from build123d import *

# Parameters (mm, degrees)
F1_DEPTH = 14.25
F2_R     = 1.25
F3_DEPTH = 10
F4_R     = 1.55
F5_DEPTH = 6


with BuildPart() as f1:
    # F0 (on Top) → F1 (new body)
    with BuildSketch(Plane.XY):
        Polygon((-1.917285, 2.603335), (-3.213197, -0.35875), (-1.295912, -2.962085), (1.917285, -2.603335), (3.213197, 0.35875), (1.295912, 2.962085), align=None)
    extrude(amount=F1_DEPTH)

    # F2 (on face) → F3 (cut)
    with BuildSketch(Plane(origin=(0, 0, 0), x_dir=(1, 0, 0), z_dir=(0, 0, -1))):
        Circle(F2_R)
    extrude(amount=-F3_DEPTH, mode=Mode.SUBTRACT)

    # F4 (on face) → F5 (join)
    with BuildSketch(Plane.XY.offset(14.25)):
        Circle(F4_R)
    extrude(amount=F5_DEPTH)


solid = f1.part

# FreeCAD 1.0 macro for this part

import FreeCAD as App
import Part
import Sketcher

doc = App.newDocument("Part")
body = doc.addObject("PartDesign::Body", "Body")

# Sketch on XY plane
sketch1 = body.newObject("Sketcher::SketchObject", "Sketch")
sketch1.AttachmentSupport = (doc.getObject("XY_Plane"), [""])
sketch1.MapMode = "FlatFace"
sketch1.addGeometry([
    Part.LineSegment(App.Vector(-1.917285, 2.603335, 0), App.Vector(-3.213197, -0.35875, 0)),  # 0
    Part.LineSegment(App.Vector(-3.213197, -0.35875, 0), App.Vector(-1.295912, -2.962085, 0)),  # 1
    Part.LineSegment(App.Vector(-1.295912, -2.962085, 0), App.Vector(1.917285, -2.603335, 0)),  # 2
    Part.LineSegment(App.Vector(1.917285, -2.603335, 0), App.Vector(3.213197, 0.35875, 0)),  # 3
    Part.LineSegment(App.Vector(3.213197, 0.35875, 0), App.Vector(1.295912, 2.962085, 0)),  # 4
    Part.LineSegment(App.Vector(1.295912, 2.962085, 0), App.Vector(-1.917285, 2.603335, 0)),  # 5
], False)
sketch1.addConstraint([
    Sketcher.Constraint("Coincident", 0, 2, 1, 1),
    Sketcher.Constraint("Coincident", 1, 2, 2, 1),
    Sketcher.Constraint("Coincident", 2, 2, 3, 1),
    Sketcher.Constraint("Coincident", 3, 2, 4, 1),
    Sketcher.Constraint("Coincident", 4, 2, 5, 1),
    Sketcher.Constraint("Coincident", 5, 2, 0, 1),
    Sketcher.Constraint("Symmetric", 0, 2, 3, 2, -1, 1),
    Sketcher.Constraint("Symmetric", 1, 2, 4, 2, -1, 1),
    Sketcher.Constraint("Symmetric", 2, 2, 5, 2, -1, 1),
    Sketcher.Constraint("Equal", 0, 1),
    Sketcher.Constraint("Equal", 1, 2),
    Sketcher.Constraint("DistanceY", 0, 2, 3, 2, 0.7175),
    Sketcher.Constraint("Distance", 0, 3.233162),
    Sketcher.Constraint("DistanceY", 1, 2, 2, 2, 0.35875),
    Sketcher.Constraint("DistanceX", 0, 2, 2, 2, 5.130482),
])
pad1 = body.newObject("PartDesign::Pad", "Pad")
pad1.Profile = sketch1
pad1.Length = 14.25

# Sketch on XY plane
sketch2 = body.newObject("Sketcher::SketchObject", "Sketch001")
sketch2.AttachmentSupport = (doc.getObject("XY_Plane"), [""])
sketch2.MapMode = "FlatFace"
sketch2.addGeometry(Part.Circle(App.Vector(0, 0, 0), App.Vector(0, 0, 1), 1.25), False)
sketch2.addConstraint([
    Sketcher.Constraint("Coincident", 0, 3, -1, 1),
    Sketcher.Constraint("Diameter", 0, 2.5),
])
pocket1 = body.newObject("PartDesign::Pocket", "Pocket")
pocket1.Profile = sketch2
pocket1.Length = 10
pocket1.Reversed = True

# Sketch on XY plane
sketch3 = body.newObject("Sketcher::SketchObject", "Sketch002")
sketch3.AttachmentSupport = (doc.getObject("XY_Plane"), [""])
sketch3.MapMode = "FlatFace"
sketch3.AttachmentOffset = App.Placement(App.Vector(0, 0, 14.25), App.Rotation())
sketch3.addGeometry(Part.Circle(App.Vector(0, 0, 0), App.Vector(0, 0, 1), 1.55), False)
sketch3.addConstraint([
    Sketcher.Constraint("Coincident", 0, 3, -1, 1),
    Sketcher.Constraint("Diameter", 0, 3.1),
])
pad2 = body.newObject("PartDesign::Pad", "Pad001")
pad2.Profile = sketch3
pad2.Length = 6

doc.recompute()
